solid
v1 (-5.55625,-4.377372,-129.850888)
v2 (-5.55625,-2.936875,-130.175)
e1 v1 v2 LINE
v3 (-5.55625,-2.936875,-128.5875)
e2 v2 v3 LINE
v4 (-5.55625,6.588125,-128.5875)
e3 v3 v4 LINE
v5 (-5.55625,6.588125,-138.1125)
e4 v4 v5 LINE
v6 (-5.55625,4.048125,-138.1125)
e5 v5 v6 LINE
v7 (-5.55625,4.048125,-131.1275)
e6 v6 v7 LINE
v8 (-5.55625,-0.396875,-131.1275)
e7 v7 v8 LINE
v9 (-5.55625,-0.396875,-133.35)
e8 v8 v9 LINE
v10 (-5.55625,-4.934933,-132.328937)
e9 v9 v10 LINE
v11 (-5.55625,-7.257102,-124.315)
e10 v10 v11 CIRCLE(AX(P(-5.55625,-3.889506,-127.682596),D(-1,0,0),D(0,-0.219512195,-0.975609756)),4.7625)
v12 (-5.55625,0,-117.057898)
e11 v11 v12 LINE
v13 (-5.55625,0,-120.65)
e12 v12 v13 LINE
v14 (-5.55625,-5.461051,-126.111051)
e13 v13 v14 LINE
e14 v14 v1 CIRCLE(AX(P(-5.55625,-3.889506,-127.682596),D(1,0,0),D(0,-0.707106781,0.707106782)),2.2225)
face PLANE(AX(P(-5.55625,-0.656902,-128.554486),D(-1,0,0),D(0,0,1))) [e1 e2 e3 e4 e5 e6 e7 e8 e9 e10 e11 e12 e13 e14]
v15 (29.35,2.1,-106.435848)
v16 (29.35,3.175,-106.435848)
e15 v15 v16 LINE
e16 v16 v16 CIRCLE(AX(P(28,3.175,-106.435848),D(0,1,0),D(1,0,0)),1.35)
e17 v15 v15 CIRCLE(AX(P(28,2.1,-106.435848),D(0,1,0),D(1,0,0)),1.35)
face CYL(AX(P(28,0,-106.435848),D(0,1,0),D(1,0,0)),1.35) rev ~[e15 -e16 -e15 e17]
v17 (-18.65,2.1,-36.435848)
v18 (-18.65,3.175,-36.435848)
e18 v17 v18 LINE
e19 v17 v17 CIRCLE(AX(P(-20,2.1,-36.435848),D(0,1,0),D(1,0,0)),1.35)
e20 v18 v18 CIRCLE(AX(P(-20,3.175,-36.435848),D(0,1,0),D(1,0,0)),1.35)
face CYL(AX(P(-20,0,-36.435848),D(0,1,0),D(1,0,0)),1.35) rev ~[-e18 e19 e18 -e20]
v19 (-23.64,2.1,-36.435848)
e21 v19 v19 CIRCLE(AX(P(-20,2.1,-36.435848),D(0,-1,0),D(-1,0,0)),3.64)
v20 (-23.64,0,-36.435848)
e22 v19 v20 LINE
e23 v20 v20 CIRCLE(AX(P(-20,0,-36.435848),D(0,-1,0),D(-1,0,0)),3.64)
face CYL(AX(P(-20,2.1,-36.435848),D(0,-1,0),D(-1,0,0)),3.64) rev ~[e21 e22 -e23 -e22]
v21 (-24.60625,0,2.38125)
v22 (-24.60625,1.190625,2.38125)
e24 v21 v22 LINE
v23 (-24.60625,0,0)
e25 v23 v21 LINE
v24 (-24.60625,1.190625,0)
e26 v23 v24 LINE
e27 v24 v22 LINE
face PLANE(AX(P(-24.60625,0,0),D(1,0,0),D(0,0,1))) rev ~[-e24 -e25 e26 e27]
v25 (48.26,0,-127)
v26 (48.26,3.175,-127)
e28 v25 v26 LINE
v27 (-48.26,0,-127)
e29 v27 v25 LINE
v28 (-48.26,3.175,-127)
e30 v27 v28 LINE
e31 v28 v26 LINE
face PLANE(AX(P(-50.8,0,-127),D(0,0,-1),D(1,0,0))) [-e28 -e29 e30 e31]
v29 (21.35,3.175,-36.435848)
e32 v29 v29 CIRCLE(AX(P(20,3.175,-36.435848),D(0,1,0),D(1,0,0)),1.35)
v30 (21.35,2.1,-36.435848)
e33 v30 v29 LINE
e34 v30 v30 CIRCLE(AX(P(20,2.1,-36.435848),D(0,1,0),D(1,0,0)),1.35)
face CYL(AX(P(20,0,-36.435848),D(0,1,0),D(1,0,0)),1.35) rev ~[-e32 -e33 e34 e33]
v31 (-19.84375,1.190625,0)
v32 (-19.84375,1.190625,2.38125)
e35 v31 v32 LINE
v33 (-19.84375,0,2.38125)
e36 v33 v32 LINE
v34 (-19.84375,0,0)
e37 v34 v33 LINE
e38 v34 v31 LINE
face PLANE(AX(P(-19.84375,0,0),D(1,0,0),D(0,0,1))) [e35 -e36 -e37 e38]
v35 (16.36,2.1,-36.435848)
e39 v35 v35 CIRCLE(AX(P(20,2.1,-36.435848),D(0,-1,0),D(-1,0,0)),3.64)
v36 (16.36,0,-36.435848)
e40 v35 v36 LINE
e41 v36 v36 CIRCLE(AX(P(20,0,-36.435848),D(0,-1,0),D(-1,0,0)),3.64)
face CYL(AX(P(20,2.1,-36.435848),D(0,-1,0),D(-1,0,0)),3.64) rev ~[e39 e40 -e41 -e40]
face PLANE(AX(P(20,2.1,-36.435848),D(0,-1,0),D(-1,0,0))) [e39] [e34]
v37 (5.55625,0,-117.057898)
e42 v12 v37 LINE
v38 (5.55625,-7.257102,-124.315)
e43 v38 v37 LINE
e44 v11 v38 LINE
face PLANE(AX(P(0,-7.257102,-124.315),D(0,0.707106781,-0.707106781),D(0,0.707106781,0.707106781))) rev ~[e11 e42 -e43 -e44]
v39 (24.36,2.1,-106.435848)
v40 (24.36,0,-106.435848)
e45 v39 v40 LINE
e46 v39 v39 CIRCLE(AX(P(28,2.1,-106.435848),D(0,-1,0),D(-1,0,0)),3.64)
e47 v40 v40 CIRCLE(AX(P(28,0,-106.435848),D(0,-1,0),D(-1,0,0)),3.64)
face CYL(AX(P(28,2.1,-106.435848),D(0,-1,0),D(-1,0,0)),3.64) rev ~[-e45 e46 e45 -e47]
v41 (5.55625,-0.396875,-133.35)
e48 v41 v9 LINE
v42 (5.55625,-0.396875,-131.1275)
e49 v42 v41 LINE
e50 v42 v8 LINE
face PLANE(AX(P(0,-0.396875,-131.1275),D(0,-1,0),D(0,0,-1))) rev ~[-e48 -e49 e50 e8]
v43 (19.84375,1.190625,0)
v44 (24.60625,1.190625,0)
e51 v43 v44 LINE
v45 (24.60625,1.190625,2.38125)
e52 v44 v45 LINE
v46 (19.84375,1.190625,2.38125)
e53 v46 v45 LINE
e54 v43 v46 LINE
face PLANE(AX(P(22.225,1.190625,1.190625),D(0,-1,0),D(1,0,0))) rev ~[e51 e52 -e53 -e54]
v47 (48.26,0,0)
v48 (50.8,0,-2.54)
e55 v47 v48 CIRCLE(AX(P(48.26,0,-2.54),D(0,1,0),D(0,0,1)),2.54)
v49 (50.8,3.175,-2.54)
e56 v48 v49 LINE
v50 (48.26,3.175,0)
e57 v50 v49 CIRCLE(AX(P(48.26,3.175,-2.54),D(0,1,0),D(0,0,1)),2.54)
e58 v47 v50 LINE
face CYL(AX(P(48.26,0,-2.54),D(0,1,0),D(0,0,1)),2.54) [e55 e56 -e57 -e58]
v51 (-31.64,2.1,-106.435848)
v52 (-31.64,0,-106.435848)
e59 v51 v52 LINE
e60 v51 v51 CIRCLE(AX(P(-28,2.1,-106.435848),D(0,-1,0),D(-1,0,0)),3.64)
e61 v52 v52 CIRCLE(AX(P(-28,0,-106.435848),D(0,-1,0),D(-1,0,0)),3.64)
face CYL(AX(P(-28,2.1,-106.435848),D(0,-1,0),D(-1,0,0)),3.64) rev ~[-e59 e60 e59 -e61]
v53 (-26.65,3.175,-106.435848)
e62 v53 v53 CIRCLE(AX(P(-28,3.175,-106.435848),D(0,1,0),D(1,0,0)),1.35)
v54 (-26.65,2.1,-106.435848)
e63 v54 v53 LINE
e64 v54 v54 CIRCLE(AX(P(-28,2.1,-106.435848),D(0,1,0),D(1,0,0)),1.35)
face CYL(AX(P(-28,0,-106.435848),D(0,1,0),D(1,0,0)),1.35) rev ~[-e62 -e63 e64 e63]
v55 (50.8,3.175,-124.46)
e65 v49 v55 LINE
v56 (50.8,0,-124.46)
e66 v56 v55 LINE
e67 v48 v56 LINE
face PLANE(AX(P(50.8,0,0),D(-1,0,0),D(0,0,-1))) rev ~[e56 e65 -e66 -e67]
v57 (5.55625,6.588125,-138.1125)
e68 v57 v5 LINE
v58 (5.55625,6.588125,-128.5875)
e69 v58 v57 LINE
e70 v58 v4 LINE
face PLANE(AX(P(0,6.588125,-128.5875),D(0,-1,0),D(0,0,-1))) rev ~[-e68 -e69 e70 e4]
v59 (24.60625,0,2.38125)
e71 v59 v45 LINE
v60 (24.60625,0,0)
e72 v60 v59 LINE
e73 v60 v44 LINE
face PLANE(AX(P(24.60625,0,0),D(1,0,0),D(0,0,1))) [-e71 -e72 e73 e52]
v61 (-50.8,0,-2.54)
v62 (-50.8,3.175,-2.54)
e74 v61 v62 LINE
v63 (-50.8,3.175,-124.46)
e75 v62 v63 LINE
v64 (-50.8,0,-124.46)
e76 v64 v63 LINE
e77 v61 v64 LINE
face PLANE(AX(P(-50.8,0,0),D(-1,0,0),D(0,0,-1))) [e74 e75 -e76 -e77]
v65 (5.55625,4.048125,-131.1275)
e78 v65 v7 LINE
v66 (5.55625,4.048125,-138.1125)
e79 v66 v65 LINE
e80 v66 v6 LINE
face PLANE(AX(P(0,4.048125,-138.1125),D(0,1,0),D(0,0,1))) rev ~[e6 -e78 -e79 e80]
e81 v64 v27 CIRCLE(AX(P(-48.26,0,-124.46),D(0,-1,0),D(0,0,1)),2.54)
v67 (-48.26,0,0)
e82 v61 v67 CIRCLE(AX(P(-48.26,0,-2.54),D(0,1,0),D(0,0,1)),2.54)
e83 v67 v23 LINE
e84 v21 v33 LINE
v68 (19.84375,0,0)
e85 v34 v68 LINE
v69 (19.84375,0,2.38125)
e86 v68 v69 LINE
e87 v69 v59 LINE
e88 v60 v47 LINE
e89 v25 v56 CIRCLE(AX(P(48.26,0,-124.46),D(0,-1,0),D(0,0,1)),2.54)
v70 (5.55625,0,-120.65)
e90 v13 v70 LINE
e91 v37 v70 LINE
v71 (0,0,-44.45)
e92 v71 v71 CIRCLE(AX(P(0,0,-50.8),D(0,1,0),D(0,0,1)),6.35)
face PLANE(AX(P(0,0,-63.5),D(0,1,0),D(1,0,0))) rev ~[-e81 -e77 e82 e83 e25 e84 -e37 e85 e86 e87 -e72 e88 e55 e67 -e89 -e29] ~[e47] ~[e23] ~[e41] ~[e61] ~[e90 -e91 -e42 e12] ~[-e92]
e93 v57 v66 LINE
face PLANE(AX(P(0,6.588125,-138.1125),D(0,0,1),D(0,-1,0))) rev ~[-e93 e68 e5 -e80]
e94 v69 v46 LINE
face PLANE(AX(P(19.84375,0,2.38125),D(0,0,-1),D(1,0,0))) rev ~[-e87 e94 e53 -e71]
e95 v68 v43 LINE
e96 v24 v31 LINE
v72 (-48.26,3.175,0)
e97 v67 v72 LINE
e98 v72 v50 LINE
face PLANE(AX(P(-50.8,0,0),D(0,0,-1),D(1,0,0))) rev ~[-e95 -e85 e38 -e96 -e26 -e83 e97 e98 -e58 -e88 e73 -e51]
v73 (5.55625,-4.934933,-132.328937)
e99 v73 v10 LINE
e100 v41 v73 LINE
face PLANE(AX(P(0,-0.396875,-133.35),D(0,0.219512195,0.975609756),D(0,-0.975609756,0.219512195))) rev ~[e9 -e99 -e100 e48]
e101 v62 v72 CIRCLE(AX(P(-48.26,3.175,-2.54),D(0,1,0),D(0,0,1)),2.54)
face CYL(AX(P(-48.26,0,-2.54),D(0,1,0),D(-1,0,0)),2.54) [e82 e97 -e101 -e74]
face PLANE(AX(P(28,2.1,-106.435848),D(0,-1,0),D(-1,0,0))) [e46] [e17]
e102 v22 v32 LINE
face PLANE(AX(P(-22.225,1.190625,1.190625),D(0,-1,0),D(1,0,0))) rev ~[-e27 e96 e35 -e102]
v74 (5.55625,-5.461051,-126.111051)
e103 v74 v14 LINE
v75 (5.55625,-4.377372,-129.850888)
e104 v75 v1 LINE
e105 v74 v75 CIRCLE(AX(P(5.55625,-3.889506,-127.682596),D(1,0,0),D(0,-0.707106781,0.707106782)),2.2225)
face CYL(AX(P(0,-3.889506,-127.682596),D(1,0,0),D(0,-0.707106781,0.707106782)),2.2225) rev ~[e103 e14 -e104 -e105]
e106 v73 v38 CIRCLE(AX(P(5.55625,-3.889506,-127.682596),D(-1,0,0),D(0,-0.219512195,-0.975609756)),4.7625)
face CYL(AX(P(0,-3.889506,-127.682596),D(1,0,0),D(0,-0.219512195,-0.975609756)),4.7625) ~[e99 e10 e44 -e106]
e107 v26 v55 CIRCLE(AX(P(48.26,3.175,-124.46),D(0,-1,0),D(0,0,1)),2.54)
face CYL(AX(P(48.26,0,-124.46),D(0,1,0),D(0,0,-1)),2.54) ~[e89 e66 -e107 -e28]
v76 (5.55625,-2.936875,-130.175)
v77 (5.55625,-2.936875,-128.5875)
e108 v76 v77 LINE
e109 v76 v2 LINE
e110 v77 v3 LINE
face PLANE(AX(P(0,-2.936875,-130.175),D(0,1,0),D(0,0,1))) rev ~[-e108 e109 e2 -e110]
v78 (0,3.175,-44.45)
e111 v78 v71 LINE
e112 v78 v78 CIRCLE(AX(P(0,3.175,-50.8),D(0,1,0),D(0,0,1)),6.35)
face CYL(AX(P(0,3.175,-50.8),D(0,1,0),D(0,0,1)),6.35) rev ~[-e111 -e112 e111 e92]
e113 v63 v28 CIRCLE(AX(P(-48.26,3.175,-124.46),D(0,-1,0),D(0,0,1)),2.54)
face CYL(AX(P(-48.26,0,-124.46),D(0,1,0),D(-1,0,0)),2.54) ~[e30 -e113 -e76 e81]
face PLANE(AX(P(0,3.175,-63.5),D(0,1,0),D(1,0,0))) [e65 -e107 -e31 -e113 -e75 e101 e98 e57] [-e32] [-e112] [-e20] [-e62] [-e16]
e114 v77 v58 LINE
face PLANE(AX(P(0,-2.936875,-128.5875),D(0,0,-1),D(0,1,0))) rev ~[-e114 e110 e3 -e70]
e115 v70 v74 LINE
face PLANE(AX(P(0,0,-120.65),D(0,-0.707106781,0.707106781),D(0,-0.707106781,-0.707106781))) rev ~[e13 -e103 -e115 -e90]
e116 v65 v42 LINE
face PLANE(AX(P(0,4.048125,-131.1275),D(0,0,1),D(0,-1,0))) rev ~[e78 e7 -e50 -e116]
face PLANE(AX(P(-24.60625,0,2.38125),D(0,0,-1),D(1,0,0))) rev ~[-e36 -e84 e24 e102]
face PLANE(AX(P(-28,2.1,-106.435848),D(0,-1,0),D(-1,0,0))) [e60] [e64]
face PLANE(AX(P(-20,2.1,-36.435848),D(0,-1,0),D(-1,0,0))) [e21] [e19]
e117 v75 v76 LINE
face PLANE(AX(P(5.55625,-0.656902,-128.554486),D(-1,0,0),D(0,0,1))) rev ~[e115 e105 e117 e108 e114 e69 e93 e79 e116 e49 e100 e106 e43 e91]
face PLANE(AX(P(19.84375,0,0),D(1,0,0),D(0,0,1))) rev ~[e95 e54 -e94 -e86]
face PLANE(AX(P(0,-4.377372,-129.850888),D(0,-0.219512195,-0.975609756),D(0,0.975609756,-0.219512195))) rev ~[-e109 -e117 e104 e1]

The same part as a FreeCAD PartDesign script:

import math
import FreeCAD as App
import Part
import Sketcher
Q = App.Units.Quantity


def edges_at(feature, points):
    """Names of the edges that pass closest to the given points."""
    edges = feature.Shape.Edges
    near = lambda p: min(range(len(edges)), key=lambda i: edges[i].distToShape(Part.Vertex(*p))[0])
    return sorted({f"Edge{near(p) + 1}" for p in points})

doc = App.newDocument("Part")
body = doc.addObject("PartDesign::Body", "Body")

# Sketch on XZ plane
sketch1 = body.newObject("Sketcher::SketchObject", "Sketch")
sketch1.AttachmentSupport = (doc.getObject("XZ_Plane"), [""])
sketch1.MapMode = "FlatFace"
sketch1.addGeometry([
    Part.LineSegment(App.Vector(-50.8, -127, 0), App.Vector(-50.8, 0, 0)),
    Part.LineSegment(App.Vector(-50.8, 0, 0), App.Vector(50.8, 0, 0)),
    Part.LineSegment(App.Vector(50.8, 0, 0), App.Vector(50.8, -127, 0)),
    Part.LineSegment(App.Vector(50.8, -127, 0), App.Vector(-50.8, -127, 0)),
], False)
sketch1.addConstraint([
    Sketcher.Constraint("Coincident", 0, 2, 1, 1),
    Sketcher.Constraint("Coincident", 1, 2, 2, 1),
    Sketcher.Constraint("Coincident", 2, 2, 3, 1),
    Sketcher.Constraint("Coincident", 3, 2, 0, 1),
    Sketcher.Constraint("Vertical", 0),
    Sketcher.Constraint("Horizontal", 1),
    Sketcher.Constraint("Vertical", 2),
    Sketcher.Constraint("Horizontal", 3),
    Sketcher.Constraint("Symmetric", 0, 2, 1, 2, -1, 1),
    Sketcher.Constraint("DistanceX", 1, 1, 1, 2, Q("4 in")),
    Sketcher.Constraint("DistanceY", 0, 1, 0, 2, Q("5 in")),
])
pad1 = body.newObject("PartDesign::Pad", "Pad")
pad1.Profile = sketch1
pad1.Length = Q("0.125 in")
pad1.Reversed = True

# Sketch on XZ plane
sketch2 = body.newObject("Sketcher::SketchObject", "Sketch001")
sketch2.AttachmentSupport = (doc.getObject("XZ_Plane"), [""])
sketch2.MapMode = "FlatFace"
sketch2.addGeometry([
    Part.LineSegment(App.Vector(-24.60625, 2.38125, 0), App.Vector(-24.60625, 0, 0)),  # 0
    Part.LineSegment(App.Vector(-24.60625, 0, 0), App.Vector(-19.84375, 0, 0)),  # 1
    Part.LineSegment(App.Vector(-19.84375, 0, 0), App.Vector(-19.84375, 2.38125, 0)),  # 2
    Part.LineSegment(App.Vector(-19.84375, 2.38125, 0), App.Vector(-24.60625, 2.38125, 0)),  # 3
    Part.LineSegment(App.Vector(19.84375, 2.38125, 0), App.Vector(19.84375, 0, 0)),  # 4
    Part.LineSegment(App.Vector(19.84375, 0, 0), App.Vector(24.60625, 0, 0)),  # 5
    Part.LineSegment(App.Vector(24.60625, 0, 0), App.Vector(24.60625, 2.38125, 0)),  # 6
    Part.LineSegment(App.Vector(24.60625, 2.38125, 0), App.Vector(19.84375, 2.38125, 0)),  # 7
], False)
sketch2.addConstraint([
    Sketcher.Constraint("Coincident", 0, 2, 1, 1),
    Sketcher.Constraint("Coincident", 1, 2, 2, 1),
    Sketcher.Constraint("Coincident", 2, 2, 3, 1),
    Sketcher.Constraint("Coincident", 3, 2, 0, 1),
    Sketcher.Constraint("Coincident", 4, 2, 5, 1),
    Sketcher.Constraint("Coincident", 5, 2, 6, 1),
    Sketcher.Constraint("Coincident", 6, 2, 7, 1),
    Sketcher.Constraint("Coincident", 7, 2, 4, 1),
    Sketcher.Constraint("Vertical", 0),
    Sketcher.Constraint("Horizontal", 1),
    Sketcher.Constraint("Vertical", 2),
    Sketcher.Constraint("Horizontal", 3),
    Sketcher.Constraint("Vertical", 4),
    Sketcher.Constraint("Horizontal", 5),
    Sketcher.Constraint("Vertical", 6),
    Sketcher.Constraint("Horizontal", 7),
    Sketcher.Constraint("Symmetric", 1, 2, 4, 2, -1, 1),
    Sketcher.Constraint("Symmetric", 0, 2, 5, 2, -2),
    Sketcher.Constraint("Horizontal", 3, 2, 6, 2),
    Sketcher.Constraint("DistanceX", 1, 1, 1, 2, Q("0.1875 in")),
    Sketcher.Constraint("DistanceY", 0, 2, 0, 1, Q("0.09375 in")),
    Sketcher.Constraint("DistanceX", 0, 2, 4, 2, Q("1.75 in")),
])
pad2 = body.newObject("PartDesign::Pad", "Pad001")
pad2.Profile = sketch2
pad2.Length = Q("0.046875 in")
pad2.Reversed = True
doc.recompute()

fillet = body.newObject("PartDesign::Fillet", "Fillet")
fillet.Base = (pad2, edges_at(pad2, [
    (50.8, 1.587, 0),
    (-50.8, 1.587, 0),
    (-50.8, 1.587, -127),
    (50.8, 1.587, -127),
]))
fillet.Radius = Q("0.1 in")

# Sketch on YZ plane
sketch3 = body.newObject("Sketcher::SketchObject", "Sketch002")
sketch3.AttachmentSupport = (doc.getObject("YZ_Plane"), [""])
sketch3.MapMode = "FlatFace"
sketch3.addGeometry([
    Part.LineSegment(App.Vector(-5.461051, -126.111051, 0), App.Vector(0, -120.65, 0)),  # 0
    Part.LineSegment(App.Vector(0, -120.65, 0), App.Vector(0, -117.057898, 0)),  # 1
    Part.LineSegment(App.Vector(0, -117.057898, 0), App.Vector(-7.257102, -124.315, 0)),  # 2
    Part.ArcOfCircle(Part.Circle(App.Vector(-3.889506, -127.682596, 0), App.Vector(0, 0, 1), 4.7625), math.radians(135), math.radians(257.319617)),  # 3
    Part.LineSegment(App.Vector(-4.934933, -132.328937, 0), App.Vector(-0.396875, -133.35, 0)),  # 4
    Part.LineSegment(App.Vector(-0.396875, -133.35, 0), App.Vector(-0.396875, -131.1275, 0)),  # 5
    Part.LineSegment(App.Vector(-0.396875, -131.1275, 0), App.Vector(4.048125, -131.1275, 0)),  # 6
    Part.LineSegment(App.Vector(4.048125, -131.1275, 0), App.Vector(4.048125, -138.1125, 0)),  # 7
    Part.LineSegment(App.Vector(4.048125, -138.1125, 0), App.Vector(6.588125, -138.1125, 0)),  # 8
    Part.LineSegment(App.Vector(6.588125, -138.1125, 0), App.Vector(6.588125, -128.5875, 0)),  # 9
    Part.LineSegment(App.Vector(6.588125, -128.5875, 0), App.Vector(-2.936875, -128.5875, 0)),  # 10
    Part.LineSegment(App.Vector(-2.936875, -128.5875, 0), App.Vector(-2.936875, -130.175, 0)),  # 11
    Part.LineSegment(App.Vector(-2.936875, -130.175, 0), App.Vector(-4.377372, -129.850888, 0)),  # 12
    Part.ArcOfCircle(Part.Circle(App.Vector(-3.889506, -127.682596, 0), App.Vector(0, 0, 1), 2.2225), math.radians(135), math.radians(257.319617)),  # 13
], False)
sketch3.addConstraint([
    Sketcher.Constraint("Coincident", 0, 2, 1, 1),
    Sketcher.Constraint("Coincident", 1, 2, 2, 1),
    Sketcher.Constraint("Tangent", 2, 2, 3, 1),
    Sketcher.Constraint("Tangent", 3, 2, 4, 1),
    Sketcher.Constraint("Coincident", 4, 2, 5, 1),
    Sketcher.Constraint("Coincident", 5, 2, 6, 1),
    Sketcher.Constraint("Coincident", 6, 2, 7, 1),
    Sketcher.Constraint("Coincident", 7, 2, 8, 1),
    Sketcher.Constraint("Coincident", 8, 2, 9, 1),
    Sketcher.Constraint("Coincident", 9, 2, 10, 1),
    Sketcher.Constraint("Coincident", 10, 2, 11, 1),
    Sketcher.Constraint("Coincident", 11, 2, 12, 1),
    Sketcher.Constraint("Tangent", 12, 2, 13, 2),
    Sketcher.Constraint("Tangent", 13, 1, 0, 1),
    Sketcher.Constraint("Vertical", 1),
    Sketcher.Constraint("Vertical", 5),
    Sketcher.Constraint("Horizontal", 6),
    Sketcher.Constraint("Vertical", 7),
    Sketcher.Constraint("Horizontal", 8),
    Sketcher.Constraint("Vertical", 9),
    Sketcher.Constraint("Horizontal", 10),
    Sketcher.Constraint("Vertical", 11),
    Sketcher.Constraint("Coincident", 13, 3, 3, 3),
    Sketcher.Constraint("PointOnObject", 0, 2, -2),
    Sketcher.Constraint("Parallel", 0, 2),
    Sketcher.Constraint("Parallel", 4, 12),
    Sketcher.Constraint("Equal", 10, 9),
    Sketcher.Constraint("DistanceX", 8, 1, 8, 2, Q("0.1 in")),
    Sketcher.Constraint("Angle", 0, Q("45 deg")),
    Sketcher.Constraint("Radius", 3, Q("0.1875 in")),
    Sketcher.Constraint("Radius", 13, Q("0.0875 in")),
    Sketcher.Constraint("DistanceY", 4, 2, 0, 2, Q("0.5 in")),
    Sketcher.Constraint("DistanceY", 6, 2, 9, 2, Q("0.1 in")),
    Sketcher.Constraint("DistanceX", 10, 2, 5, 2, Q("0.1 in")),
    Sketcher.Constraint("DistanceX", 6, 1, 6, 2, Q("0.175 in")),
    Sketcher.Constraint("DistanceY", 11, 2, 11, 1, Q("0.0625 in")),
    Sketcher.Constraint("DistanceY", 0, 2, -1, 1, Q("4.75 in")),
    Sketcher.Constraint("DistanceY", 5, 1, 5, 2, Q("0.0875 in")),
    Sketcher.Constraint("DistanceX", 4, 2, -1, 1, Q("0.015625 in")),
])
pad3 = body.newObject("PartDesign::Pad", "Pad002")
pad3.Profile = sketch3
pad3.Length = Q("0.4375 in")
pad3.Midplane = True

# Sketch on XZ plane
sketch4 = body.newObject("Sketcher::SketchObject", "Sketch003")
sketch4.AttachmentSupport = (doc.getObject("XZ_Plane"), [""])
sketch4.MapMode = "FlatFace"
sketch4.addGeometry([
    Part.Circle(App.Vector(-20, -36.435848, 0), App.Vector(0, 0, 1), 1.35),
    Part.Circle(App.Vector(-28, -106.435848, 0), App.Vector(0, 0, 1), 1.35),
    Part.Circle(App.Vector(20, -36.435848, 0), App.Vector(0, 0, 1), 1.35),
    Part.Circle(App.Vector(28, -106.435848, 0), App.Vector(0, 0, 1), 1.35),
], False)
sketch4.addConstraint([
    Sketcher.Constraint("Equal", 0, 1),
    Sketcher.Constraint("Equal", 1, 2),
    Sketcher.Constraint("Equal", 2, 3),
    Sketcher.Constraint("Symmetric", 0, 3, 2, 3, -2),
    Sketcher.Constraint("Symmetric", 1, 3, 3, 3, -2),
    Sketcher.Constraint("Diameter", 0, Q("2.7 mm")),
    Sketcher.Constraint("DistanceX", 0, 3, -1, 1, Q("20 mm")),
    Sketcher.Constraint("DistanceX", 1, 3, -1, 1, Q("28 mm")),
    Sketcher.Constraint("DistanceY", 1, 3, 0, 3, Q("70 mm")),
    Sketcher.Constraint("DistanceY", 0, 3, -1, 1, Q("36.435848 mm")),
])
doc.recompute()
hole = body.newObject("PartDesign::Hole", "Hole")
hole.Profile = sketch4
hole.ThreadType = "None"
hole.Diameter = 2.7
hole.DepthType = "ThroughAll"
hole.HoleCutType = "Counterbore"
hole.HoleCutDiameter = 7.28
hole.HoleCutDepth = 2.1

# Sketch on XZ plane
sketch5 = body.newObject("Sketcher::SketchObject", "Sketch004")
sketch5.AttachmentSupport = (doc.getObject("XZ_Plane"), [""])
sketch5.MapMode = "FlatFace"
sketch5.AttachmentOffset = App.Placement(App.Vector(0, 0, -0.125 * 25.4), App.Rotation())
sketch5.addGeometry(Part.Circle(App.Vector(0, -50.8, 0), App.Vector(0, 0, 1), 6.35), False)
sketch5.addConstraint([
    Sketcher.Constraint("PointOnObject", 0, 3, -2),
    Sketcher.Constraint("Diameter", 0, Q("0.5 in")),
    Sketcher.Constraint("DistanceY", 0, 3, -1, 1, Q("2 in")),
])
pocket1 = body.newObject("PartDesign::Pocket", "Pocket")
pocket1.Profile = sketch5
pocket1.Type = "ThroughAll"
pocket1.Reversed = True

doc.recompute()
